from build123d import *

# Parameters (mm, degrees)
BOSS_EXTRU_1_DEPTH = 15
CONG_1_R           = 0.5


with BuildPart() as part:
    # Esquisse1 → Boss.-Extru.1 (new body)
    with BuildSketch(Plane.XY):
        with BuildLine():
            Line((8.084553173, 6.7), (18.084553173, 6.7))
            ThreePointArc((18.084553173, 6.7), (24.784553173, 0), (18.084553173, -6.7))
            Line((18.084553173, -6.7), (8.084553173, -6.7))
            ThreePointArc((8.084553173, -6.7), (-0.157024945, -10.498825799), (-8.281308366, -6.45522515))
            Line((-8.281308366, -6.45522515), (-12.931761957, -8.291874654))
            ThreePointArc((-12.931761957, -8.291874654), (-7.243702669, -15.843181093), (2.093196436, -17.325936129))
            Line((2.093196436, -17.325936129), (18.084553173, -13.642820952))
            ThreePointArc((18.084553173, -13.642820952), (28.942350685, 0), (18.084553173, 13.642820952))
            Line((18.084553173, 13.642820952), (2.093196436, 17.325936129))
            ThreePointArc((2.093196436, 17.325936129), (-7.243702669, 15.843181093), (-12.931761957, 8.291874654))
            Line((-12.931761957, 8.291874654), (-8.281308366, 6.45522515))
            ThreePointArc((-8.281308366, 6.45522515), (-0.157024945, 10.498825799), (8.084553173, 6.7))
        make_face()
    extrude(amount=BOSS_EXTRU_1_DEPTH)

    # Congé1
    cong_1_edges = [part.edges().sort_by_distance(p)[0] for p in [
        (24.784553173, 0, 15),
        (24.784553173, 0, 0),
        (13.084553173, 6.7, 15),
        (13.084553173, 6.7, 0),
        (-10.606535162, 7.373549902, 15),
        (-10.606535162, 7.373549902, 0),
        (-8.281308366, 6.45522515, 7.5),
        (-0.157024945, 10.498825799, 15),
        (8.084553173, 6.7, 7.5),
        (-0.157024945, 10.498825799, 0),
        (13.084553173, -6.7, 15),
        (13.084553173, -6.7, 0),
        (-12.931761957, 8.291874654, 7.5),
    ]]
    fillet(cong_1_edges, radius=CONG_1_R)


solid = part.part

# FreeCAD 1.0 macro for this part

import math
import FreeCAD as App
import Part
import Sketcher

V = App.Vector
Q = App.Units.Quantity


def edges_at(feature, points):
    """Names of the edges that pass closest to the given points."""
    edges = feature.Shape.Edges
    near = lambda p: min(range(len(edges)), key=lambda i: edges[i].distToShape(Part.Vertex(*p))[0])
    return sorted({f"Edge{near(p) + 1}" for p in points})

doc = App.newDocument("Part")
body = doc.addObject("PartDesign::Body", "Body")

sketch1 = doc.addObject("Sketcher::SketchObject", "Sketch")
body.addObject(sketch1)
sketch1.AttachmentSupport = (doc.XY_Plane, [""])
sketch1.MapMode = "FlatFace"
sketch1.addGeometry(Part.LineSegment(V(8, 7, 0), V(18, 7, 0)), False)
sketch1.addGeometry(Part.ArcOfCircle(Part.Circle(V(18, 0, 0), V(0, 0, 1), 7), math.radians(-90), math.radians(90)), False)
sketch1.addGeometry(Part.LineSegment(V(18, -7, 0), V(8, -7, 0)), False)
sketch1.addGeometry(Part.ArcOfCircle(Part.Circle(V(0, 0, 0), V(0, 0, 1), 11), math.radians(-142), math.radians(-40)), False)
sketch1.addGeometry(Part.LineSegment(V(-8, -6, 0), V(-13, -8, 0)), False)
sketch1.addGeometry(Part.ArcOfCircle(Part.Circle(V(-1, -5, 0), V(0, 0, 1), 13), math.radians(-165), math.radians(-77)), False)
sketch1.addGeometry(Part.LineSegment(V(2, -17, 0), V(18, -14, 0)), False)
sketch1.addGeometry(Part.ArcOfCircle(Part.Circle(V(15, 0, 0), V(0, 0, 1), 14), math.radians(-77), math.radians(77)), False)
sketch1.addGeometry(Part.LineSegment(V(18, 14, 0), V(2, 17, 0)), False)
sketch1.addGeometry(Part.ArcOfCircle(Part.Circle(V(-1, 5, 0), V(0, 0, 1), 13), math.radians(77), math.radians(165)), False)
sketch1.addGeometry(Part.LineSegment(V(-13, 8, 0), V(-8, 6, 0)), False)
sketch1.addGeometry(Part.ArcOfCircle(Part.Circle(V(0, 0, 0), V(0, 0, 1), 11), math.radians(40), math.radians(142)), False)
sketch1.addConstraint(Sketcher.Constraint("Tangent", 0, 2, 1, 2))
sketch1.addConstraint(Sketcher.Constraint("Tangent", 1, 1, 2, 1))
sketch1.addConstraint(Sketcher.Constraint("Coincident", 2, 2, 3, 2))
sketch1.addConstraint(Sketcher.Constraint("Coincident", 3, 1, 4, 1))
sketch1.addConstraint(Sketcher.Constraint("Coincident", 4, 2, 5, 1))
sketch1.addConstraint(Sketcher.Constraint("Tangent", 5, 2, 6, 1))
sketch1.addConstraint(Sketcher.Constraint("Tangent", 6, 2, 7, 1))
sketch1.addConstraint(Sketcher.Constraint("Tangent", 7, 2, 8, 1))
sketch1.addConstraint(Sketcher.Constraint("Tangent", 8, 2, 9, 1))
sketch1.addConstraint(Sketcher.Constraint("Coincident", 9, 2, 10, 1))
sketch1.addConstraint(Sketcher.Constraint("Coincident", 10, 2, 11, 2))
sketch1.addConstraint(Sketcher.Constraint("Coincident", 11, 1, 0, 1))
sketch1.addConstraint(Sketcher.Constraint("Horizontal", 0))
sketch1.addConstraint(Sketcher.Constraint("Horizontal", 2))
sketch1.addConstraint(Sketcher.Constraint("Coincident", 3, 3, -1, 1))
sketch1.addConstraint(Sketcher.Constraint("Coincident", 11, 3, -1, 1))
sketch1.addConstraint(Sketcher.Constraint("Equal", 5, 9))
sketch1.addConstraint(Sketcher.Constraint("Equal", 3, 11))
sketch1.addConstraint(Sketcher.Constraint("Symmetric", 5, 3, 9, 3, -1))
sketch1.addConstraint(Sketcher.Constraint("PointOnObject", 1, 3, -1))
sketch1.addConstraint(Sketcher.Constraint("PointOnObject", 7, 3, -1))
sketch1.addConstraint(Sketcher.Constraint("Vertical", 1, 1, 6, 2))
sketch1.addConstraint(Sketcher.Constraint("Vertical", 4, 2, 9, 2))
sketch1.addConstraint(Sketcher.Constraint("Vertical", 3, 1, 10, 2))
sketch1.addConstraint(Sketcher.Constraint("Radius", 7, Q("14 mm")))
sketch1.addConstraint(Sketcher.Constraint("Radius", 1, Q("6.7 mm")))
sketch1.addConstraint(Sketcher.Constraint("Radius", 3, Q("10.5 mm")))
sketch1.addConstraint(Sketcher.Constraint("DistanceX", 0, 1, 0, 2, Q("10 mm")))
sketch1.addConstraint(Sketcher.Constraint("Distance", 4, Q("5 mm")))
sketch1.addConstraint(Sketcher.Constraint("Radius", 5, Q("12.621882 mm")))
sketch1.addConstraint(Sketcher.Constraint("DistanceY", 3, 1, 9, 3, Q("11.481299 mm")))
sketch1.addConstraint(Sketcher.Constraint("DistanceY", 4, 2, 5, 3, Q("3.265801 mm")))
sketch1.addConstraint(Sketcher.Constraint("DistanceX", -1, 1, 7, 3, Q("14.942351 mm")))
pad1 = doc.addObject("PartDesign::Pad", "Pad")
body.addObject(pad1)
pad1.Profile = sketch1
pad1.Length = 15
doc.recompute()

fillet = doc.addObject("PartDesign::Fillet", "Fillet")
body.addObject(fillet)
fillet.Base = (pad1, edges_at(pad1, [
    (24.785, 0, 15),
    (24.785, 0, 0),
    (13.085, 6.7, 15),
    (13.085, 6.7, 0),
    (-10.607, 7.374, 15),
    (-10.607, 7.374, 0),
    (-8.281, 6.455, 7.5),
    (-0.157, 10.499, 15),
    (8.085, 6.7, 7.5),
    (-0.157, 10.499, 0),
    (13.085, -6.7, 15),
    (13.085, -6.7, 0),
    (-12.932, 8.292, 7.5),
]))
fillet.Radius = 0.5

doc.recompute()
